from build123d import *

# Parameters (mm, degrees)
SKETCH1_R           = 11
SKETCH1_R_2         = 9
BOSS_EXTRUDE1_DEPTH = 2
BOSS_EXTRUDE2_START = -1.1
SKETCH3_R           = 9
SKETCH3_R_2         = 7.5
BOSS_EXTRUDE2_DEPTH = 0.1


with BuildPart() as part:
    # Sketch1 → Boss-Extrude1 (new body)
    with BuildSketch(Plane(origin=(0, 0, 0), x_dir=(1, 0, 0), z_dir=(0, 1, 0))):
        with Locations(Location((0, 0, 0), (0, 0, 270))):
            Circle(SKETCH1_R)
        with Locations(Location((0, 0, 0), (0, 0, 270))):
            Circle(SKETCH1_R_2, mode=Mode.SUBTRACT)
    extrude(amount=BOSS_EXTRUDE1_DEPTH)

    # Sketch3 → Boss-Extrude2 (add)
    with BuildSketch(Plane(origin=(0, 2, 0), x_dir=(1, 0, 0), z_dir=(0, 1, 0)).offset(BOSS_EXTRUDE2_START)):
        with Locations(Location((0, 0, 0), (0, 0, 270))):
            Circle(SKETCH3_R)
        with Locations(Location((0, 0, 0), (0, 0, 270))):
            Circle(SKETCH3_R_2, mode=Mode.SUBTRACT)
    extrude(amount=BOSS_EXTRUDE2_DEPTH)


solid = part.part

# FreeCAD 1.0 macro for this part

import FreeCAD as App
import Part
import Sketcher

V = App.Vector

doc = App.newDocument("Part")
body = doc.addObject("PartDesign::Body", "Body")

# Sketch on XZ plane
sketch1 = body.newObject("Sketcher::SketchObject", "Sketch")
sketch1.AttachmentSupport = (doc.getObject("XZ_Plane"), [""])
sketch1.MapMode = "FlatFace"
sketch1.addGeometry([
    Part.Circle(V(0, 0, 0), V(0, 0, 1), 11),
    Part.Circle(V(0, 0, 0), V(0, 0, 1), 9),
], False)
sketch1.addConstraint([
    Sketcher.Constraint("Coincident", 0, 3, -1, 1),
    Sketcher.Constraint("Coincident", 1, 3, -1, 1),
    Sketcher.Constraint("Diameter", 0, 22.0),
    Sketcher.Constraint("Diameter", 1, 18.0),
])
pad1 = body.newObject("PartDesign::Pad", "Pad")
pad1.Profile = sketch1
pad1.Length = 2
pad1.Reversed = True

# Sketch on XZ plane
sketch2 = body.newObject("Sketcher::SketchObject", "Sketch001")
sketch2.AttachmentSupport = (doc.getObject("XZ_Plane"), [""])
sketch2.MapMode = "FlatFace"
sketch2.AttachmentOffset = App.Placement(V(0, 0, -0.9), App.Rotation())
sketch2.addGeometry([
    Part.Circle(V(0, 0, 0), V(0, 0, 1), 9),
    Part.Circle(V(0, 0, 0), V(0, 0, 1), 8),
], False)
sketch2.addConstraint([
    Sketcher.Constraint("Coincident", 0, 3, -1, 1),
    Sketcher.Constraint("Coincident", 1, 3, -1, 1),
    Sketcher.Constraint("Diameter", 0, 18.0),
    Sketcher.Constraint("Diameter", 1, 15.0),
])
pad2 = body.newObject("PartDesign::Pad", "Pad001")
pad2.Profile = sketch2
pad2.Length = 0.1
pad2.Reversed = True

doc.recompute()
